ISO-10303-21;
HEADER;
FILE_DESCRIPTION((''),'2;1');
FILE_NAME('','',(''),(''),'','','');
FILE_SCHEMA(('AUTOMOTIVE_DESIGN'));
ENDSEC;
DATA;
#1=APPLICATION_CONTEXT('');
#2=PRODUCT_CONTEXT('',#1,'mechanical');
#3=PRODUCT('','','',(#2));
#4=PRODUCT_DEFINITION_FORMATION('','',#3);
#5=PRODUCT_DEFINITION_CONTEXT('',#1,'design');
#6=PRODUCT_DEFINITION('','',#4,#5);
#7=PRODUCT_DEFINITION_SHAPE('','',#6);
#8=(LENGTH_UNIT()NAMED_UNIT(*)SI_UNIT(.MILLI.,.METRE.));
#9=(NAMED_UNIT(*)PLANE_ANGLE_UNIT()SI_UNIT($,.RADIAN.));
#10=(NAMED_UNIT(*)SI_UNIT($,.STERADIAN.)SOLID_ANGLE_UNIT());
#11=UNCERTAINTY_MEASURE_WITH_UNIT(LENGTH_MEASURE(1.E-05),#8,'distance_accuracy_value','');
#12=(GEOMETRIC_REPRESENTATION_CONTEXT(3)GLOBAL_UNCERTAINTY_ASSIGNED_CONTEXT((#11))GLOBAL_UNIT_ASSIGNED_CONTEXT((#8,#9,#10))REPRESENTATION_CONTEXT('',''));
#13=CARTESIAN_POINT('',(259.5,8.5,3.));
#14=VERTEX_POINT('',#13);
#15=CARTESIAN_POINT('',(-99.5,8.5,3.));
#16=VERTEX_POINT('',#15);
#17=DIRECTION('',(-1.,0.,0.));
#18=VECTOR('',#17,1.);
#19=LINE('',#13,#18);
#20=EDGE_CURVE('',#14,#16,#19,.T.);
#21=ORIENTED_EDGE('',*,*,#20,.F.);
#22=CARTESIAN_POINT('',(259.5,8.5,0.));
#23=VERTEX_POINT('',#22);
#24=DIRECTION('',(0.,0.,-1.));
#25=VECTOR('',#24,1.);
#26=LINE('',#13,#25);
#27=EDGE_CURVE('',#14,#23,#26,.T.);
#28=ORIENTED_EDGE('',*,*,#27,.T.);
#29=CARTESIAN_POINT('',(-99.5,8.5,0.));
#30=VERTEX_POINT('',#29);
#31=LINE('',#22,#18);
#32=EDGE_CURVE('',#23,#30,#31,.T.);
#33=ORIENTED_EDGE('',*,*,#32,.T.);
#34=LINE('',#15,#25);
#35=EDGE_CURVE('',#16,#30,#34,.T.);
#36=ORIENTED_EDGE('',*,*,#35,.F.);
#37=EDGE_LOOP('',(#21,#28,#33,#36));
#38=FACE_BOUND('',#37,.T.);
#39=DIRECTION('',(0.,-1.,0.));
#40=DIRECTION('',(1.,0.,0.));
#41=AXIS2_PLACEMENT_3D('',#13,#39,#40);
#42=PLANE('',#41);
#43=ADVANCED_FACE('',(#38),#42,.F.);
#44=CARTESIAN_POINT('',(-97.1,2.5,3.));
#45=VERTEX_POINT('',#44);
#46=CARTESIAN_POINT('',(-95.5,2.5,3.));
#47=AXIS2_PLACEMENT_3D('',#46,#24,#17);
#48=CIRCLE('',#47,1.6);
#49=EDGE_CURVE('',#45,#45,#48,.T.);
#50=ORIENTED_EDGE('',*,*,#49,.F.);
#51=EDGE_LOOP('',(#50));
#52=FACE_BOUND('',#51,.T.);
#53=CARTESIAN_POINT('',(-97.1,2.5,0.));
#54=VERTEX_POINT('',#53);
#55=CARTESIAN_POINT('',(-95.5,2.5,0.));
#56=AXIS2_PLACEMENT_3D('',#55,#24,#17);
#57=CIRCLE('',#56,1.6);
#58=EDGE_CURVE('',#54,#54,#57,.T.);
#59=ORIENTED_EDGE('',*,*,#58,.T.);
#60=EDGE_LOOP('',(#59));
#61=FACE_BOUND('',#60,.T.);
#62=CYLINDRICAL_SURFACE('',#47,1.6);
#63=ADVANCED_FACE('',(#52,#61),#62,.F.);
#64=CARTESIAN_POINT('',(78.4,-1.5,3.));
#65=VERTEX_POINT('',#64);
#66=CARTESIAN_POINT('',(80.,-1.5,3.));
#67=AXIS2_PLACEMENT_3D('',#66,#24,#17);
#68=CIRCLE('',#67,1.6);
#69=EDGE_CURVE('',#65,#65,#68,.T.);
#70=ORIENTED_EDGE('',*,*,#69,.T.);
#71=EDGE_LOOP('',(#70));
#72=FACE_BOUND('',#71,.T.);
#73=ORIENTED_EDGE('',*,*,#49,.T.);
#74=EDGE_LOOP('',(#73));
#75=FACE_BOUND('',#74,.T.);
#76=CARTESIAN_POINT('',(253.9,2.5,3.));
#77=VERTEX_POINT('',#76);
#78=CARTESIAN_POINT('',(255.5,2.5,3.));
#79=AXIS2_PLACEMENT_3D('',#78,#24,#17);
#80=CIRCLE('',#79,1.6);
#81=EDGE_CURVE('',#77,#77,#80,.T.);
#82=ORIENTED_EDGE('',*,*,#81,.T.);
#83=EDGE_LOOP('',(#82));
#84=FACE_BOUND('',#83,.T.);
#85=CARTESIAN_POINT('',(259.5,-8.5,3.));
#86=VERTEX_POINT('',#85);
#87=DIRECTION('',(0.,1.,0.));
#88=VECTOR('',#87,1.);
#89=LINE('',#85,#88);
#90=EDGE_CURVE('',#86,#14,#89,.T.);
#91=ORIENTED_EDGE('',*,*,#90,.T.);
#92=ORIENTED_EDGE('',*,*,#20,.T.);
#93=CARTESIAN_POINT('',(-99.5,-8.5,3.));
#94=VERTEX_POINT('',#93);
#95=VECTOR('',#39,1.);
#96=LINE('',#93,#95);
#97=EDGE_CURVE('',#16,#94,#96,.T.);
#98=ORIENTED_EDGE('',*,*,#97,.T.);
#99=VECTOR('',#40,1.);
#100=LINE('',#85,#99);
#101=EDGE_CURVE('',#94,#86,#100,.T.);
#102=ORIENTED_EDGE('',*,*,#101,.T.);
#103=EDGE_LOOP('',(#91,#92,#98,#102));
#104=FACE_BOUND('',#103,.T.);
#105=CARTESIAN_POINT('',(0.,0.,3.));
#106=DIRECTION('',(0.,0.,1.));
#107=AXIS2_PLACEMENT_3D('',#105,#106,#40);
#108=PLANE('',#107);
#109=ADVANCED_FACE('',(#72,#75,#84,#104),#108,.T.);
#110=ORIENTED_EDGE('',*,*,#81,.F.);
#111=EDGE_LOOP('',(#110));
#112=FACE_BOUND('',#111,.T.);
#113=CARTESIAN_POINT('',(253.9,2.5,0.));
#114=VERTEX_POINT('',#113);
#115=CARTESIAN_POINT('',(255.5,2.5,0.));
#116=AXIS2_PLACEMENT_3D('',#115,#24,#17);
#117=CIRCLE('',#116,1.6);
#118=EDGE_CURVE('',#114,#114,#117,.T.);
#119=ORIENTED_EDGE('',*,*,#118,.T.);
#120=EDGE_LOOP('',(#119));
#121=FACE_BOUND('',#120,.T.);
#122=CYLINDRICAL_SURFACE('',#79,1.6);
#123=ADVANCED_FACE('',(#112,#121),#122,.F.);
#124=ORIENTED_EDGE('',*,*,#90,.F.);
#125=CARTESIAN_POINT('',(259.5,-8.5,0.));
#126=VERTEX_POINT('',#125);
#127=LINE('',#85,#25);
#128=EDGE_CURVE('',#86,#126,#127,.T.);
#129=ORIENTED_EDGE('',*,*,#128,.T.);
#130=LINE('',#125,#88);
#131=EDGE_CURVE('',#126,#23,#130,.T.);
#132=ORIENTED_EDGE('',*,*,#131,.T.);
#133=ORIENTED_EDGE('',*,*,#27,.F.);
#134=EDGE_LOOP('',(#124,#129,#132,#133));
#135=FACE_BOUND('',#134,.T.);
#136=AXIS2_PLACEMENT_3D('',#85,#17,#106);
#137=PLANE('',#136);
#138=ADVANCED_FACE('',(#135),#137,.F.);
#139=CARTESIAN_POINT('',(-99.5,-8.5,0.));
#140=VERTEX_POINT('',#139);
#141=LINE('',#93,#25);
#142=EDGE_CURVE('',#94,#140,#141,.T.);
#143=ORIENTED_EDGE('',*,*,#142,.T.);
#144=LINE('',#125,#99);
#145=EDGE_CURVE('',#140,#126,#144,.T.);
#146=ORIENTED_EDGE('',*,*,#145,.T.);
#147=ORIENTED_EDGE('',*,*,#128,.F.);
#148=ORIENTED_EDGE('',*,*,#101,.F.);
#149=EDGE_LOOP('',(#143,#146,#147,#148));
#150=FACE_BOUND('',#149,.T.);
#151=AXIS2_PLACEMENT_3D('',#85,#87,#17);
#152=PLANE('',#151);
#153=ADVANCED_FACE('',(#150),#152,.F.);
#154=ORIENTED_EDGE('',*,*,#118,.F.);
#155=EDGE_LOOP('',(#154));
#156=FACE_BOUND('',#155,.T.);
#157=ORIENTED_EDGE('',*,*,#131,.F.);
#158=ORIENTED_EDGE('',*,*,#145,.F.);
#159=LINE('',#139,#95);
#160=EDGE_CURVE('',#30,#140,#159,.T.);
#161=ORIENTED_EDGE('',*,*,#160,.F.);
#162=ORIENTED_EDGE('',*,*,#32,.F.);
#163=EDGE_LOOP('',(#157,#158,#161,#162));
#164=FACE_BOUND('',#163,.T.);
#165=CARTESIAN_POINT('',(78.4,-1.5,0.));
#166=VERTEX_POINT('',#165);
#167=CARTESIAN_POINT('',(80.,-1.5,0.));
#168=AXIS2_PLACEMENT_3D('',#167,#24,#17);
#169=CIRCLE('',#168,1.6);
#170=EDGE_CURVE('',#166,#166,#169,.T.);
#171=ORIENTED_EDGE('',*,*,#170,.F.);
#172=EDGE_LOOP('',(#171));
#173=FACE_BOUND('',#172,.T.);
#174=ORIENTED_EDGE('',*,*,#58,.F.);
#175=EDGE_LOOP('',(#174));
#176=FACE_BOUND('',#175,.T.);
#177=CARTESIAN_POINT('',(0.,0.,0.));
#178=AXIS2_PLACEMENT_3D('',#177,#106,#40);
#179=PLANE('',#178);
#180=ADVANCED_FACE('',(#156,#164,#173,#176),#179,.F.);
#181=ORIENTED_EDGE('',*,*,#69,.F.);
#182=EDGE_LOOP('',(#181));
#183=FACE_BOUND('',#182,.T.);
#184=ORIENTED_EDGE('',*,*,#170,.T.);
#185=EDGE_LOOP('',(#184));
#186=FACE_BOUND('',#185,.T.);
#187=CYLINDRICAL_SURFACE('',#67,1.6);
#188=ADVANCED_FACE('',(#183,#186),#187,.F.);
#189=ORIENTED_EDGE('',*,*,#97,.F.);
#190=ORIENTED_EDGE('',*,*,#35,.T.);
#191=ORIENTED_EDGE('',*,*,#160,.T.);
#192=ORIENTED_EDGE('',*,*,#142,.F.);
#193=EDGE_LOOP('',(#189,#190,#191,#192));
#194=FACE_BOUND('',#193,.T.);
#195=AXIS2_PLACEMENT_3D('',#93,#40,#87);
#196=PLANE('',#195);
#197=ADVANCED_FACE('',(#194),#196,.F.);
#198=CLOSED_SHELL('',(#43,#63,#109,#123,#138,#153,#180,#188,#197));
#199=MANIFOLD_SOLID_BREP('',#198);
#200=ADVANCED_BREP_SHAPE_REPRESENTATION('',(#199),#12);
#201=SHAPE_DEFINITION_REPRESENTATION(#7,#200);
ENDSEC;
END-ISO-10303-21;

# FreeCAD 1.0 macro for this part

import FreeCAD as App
import Part
import Sketcher
from FreeCAD import Vector
Q = App.Units.Quantity

doc = App.newDocument("Part")
body = doc.addObject("PartDesign::Body", "Body")

# Sketch on XY plane
sketch1 = doc.addObject("Sketcher::SketchObject", "Sketch")
body.addObject(sketch1)
sketch1.AttachmentSupport = (doc.XY_Plane, [""])
sketch1.MapMode = "FlatFace"
sketch1.addGeometry(Part.LineSegment(Vector(-100, 8, 0), Vector(-100, -8, 0)), False)
sketch1.addGeometry(Part.LineSegment(Vector(-100, -8, 0), Vector(260, -8, 0)), False)
sketch1.addGeometry(Part.LineSegment(Vector(260, -8, 0), Vector(260, 8, 0)), False)
sketch1.addGeometry(Part.LineSegment(Vector(260, 8, 0), Vector(-100, 8, 0)), False)
sketch1.addConstraint(Sketcher.Constraint("Coincident", 0, 2, 1, 1))
sketch1.addConstraint(Sketcher.Constraint("Coincident", 1, 2, 2, 1))
sketch1.addConstraint(Sketcher.Constraint("Coincident", 2, 2, 3, 1))
sketch1.addConstraint(Sketcher.Constraint("Coincident", 3, 2, 0, 1))
sketch1.addConstraint(Sketcher.Constraint("Vertical", 0))
sketch1.addConstraint(Sketcher.Constraint("Horizontal", 1))
sketch1.addConstraint(Sketcher.Constraint("Vertical", 2))
sketch1.addConstraint(Sketcher.Constraint("Horizontal", 3))
sketch1.addConstraint(Sketcher.Constraint("DistanceX", 1, 1, 1, 2, Q("359 mm")))
sketch1.addConstraint(Sketcher.Constraint("DistanceY", 0, 2, 0, 1, Q("17 mm")))
sketch1.addConstraint(Sketcher.Constraint("DistanceX", 0, 2, -1, 1, Q("99.5 mm")))
sketch1.addConstraint(Sketcher.Constraint("DistanceY", 0, 2, -1, 1, Q("8.5 mm")))
pad1 = doc.addObject("PartDesign::Pad", "Pad")
body.addObject(pad1)
pad1.Profile = sketch1
pad1.Length = 3

# Sketch on XY plane
sketch2 = doc.addObject("Sketcher::SketchObject", "Sketch001")
body.addObject(sketch2)
sketch2.AttachmentSupport = (doc.XY_Plane, [""])
sketch2.MapMode = "FlatFace"
sketch2.addGeometry(Part.Circle(Vector(-95.5, 2.5, 0), Vector(0, 0, 1), 1.6), False)
sketch2.addConstraint(Sketcher.Constraint("Diameter", 0, Q("3.2 mm")))
sketch2.addConstraint(Sketcher.Constraint("DistanceX", 0, 3, -1, 1, Q("95.5 mm")))
sketch2.addConstraint(Sketcher.Constraint("DistanceY", -1, 1, 0, 3, Q("2.5 mm")))
pocket1 = doc.addObject("PartDesign::Pocket", "Pocket")
body.addObject(pocket1)
pocket1.Profile = sketch2
pocket1.Type = "ThroughAll"
pocket1.Reversed = True

# Sketch on XY plane
sketch3 = doc.addObject("Sketcher::SketchObject", "Sketch002")
body.addObject(sketch3)
sketch3.AttachmentSupport = (doc.XY_Plane, [""])
sketch3.MapMode = "FlatFace"
sketch3.addGeometry(Part.Circle(Vector(255.5, 2.5, 0), Vector(0, 0, 1), 1.6), False)
sketch3.addConstraint(Sketcher.Constraint("Diameter", 0, Q("3.2 mm")))
sketch3.addConstraint(Sketcher.Constraint("DistanceX", -1, 1, 0, 3, Q("255.5 mm")))
sketch3.addConstraint(Sketcher.Constraint("DistanceY", -1, 1, 0, 3, Q("2.5 mm")))
pocket2 = doc.addObject("PartDesign::Pocket", "Pocket001")
body.addObject(pocket2)
pocket2.Profile = sketch3
pocket2.Type = "ThroughAll"
pocket2.Reversed = True

# Sketch on XY plane
sketch4 = doc.addObject("Sketcher::SketchObject", "Sketch003")
body.addObject(sketch4)
sketch4.AttachmentSupport = (doc.XY_Plane, [""])
sketch4.MapMode = "FlatFace"
sketch4.addGeometry(Part.Circle(Vector(80, -1.5, 0), Vector(0, 0, 1), 1.6), False)
sketch4.addConstraint(Sketcher.Constraint("Diameter", 0, Q("3.2 mm")))
sketch4.addConstraint(Sketcher.Constraint("DistanceX", -1, 1, 0, 3, Q("80 mm")))
sketch4.addConstraint(Sketcher.Constraint("DistanceY", 0, 3, -1, 1, Q("1.5 mm")))
pocket3 = doc.addObject("PartDesign::Pocket", "Pocket002")
body.addObject(pocket3)
pocket3.Profile = sketch4
pocket3.Type = "ThroughAll"
pocket3.Reversed = True

doc.recompute()
